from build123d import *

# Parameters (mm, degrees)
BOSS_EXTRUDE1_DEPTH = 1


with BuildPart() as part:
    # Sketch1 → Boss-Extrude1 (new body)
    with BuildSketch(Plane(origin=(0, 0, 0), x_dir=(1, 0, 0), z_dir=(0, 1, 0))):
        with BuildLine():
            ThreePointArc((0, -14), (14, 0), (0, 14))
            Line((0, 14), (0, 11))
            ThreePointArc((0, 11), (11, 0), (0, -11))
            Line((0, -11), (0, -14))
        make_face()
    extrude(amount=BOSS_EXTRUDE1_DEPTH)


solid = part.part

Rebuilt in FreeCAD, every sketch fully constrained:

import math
import FreeCAD as App
import Part
import Sketcher
Q = App.Units.Quantity

doc = App.newDocument("Part")
body = doc.addObject("PartDesign::Body", "Body")

# Sketch on XZ plane
sketch1 = doc.addObject("Sketcher::SketchObject", "Sketch")
body.addObject(sketch1)
sketch1.AttachmentSupport = (doc.XZ_Plane, [""])
sketch1.MapMode = "FlatFace"
sketch1.addGeometry([
    Part.ArcOfCircle(Part.Circle(App.Vector(0, 0, 0), App.Vector(0, 0, 1), 14), math.radians(-90), math.radians(90)),
    Part.LineSegment(App.Vector(0, -14, 0), App.Vector(0, -11, 0)),
    Part.ArcOfCircle(Part.Circle(App.Vector(0, 0, 0), App.Vector(0, 0, 1), 11), math.radians(-90), math.radians(90)),
    Part.LineSegment(App.Vector(0, 11, 0), App.Vector(0, 14, 0)),
], False)
sketch1.addConstraint([
    Sketcher.Constraint("Coincident", 0, 1, 1, 1),
    Sketcher.Constraint("Coincident", 1, 2, 2, 1),
    Sketcher.Constraint("Coincident", 2, 2, 3, 1),
    Sketcher.Constraint("Coincident", 3, 2, 0, 2),
    Sketcher.Constraint("Vertical", 1),
    Sketcher.Constraint("Vertical", 3),
    Sketcher.Constraint("Coincident", 0, 3, -1, 1),
    Sketcher.Constraint("Coincident", 2, 3, -1, 1),
    Sketcher.Constraint("PointOnObject", 0, 1, -2),
    Sketcher.Constraint("PointOnObject", 2, 2, -2),
    Sketcher.Constraint("Radius", 0, Q("14 mm")),
    Sketcher.Constraint("Radius", 2, Q("11 mm")),
])
pad1 = doc.addObject("PartDesign::Pad", "Pad")
body.addObject(pad1)
pad1.Profile = sketch1
pad1.Length = 1
pad1.Reversed = True

doc.recompute()
